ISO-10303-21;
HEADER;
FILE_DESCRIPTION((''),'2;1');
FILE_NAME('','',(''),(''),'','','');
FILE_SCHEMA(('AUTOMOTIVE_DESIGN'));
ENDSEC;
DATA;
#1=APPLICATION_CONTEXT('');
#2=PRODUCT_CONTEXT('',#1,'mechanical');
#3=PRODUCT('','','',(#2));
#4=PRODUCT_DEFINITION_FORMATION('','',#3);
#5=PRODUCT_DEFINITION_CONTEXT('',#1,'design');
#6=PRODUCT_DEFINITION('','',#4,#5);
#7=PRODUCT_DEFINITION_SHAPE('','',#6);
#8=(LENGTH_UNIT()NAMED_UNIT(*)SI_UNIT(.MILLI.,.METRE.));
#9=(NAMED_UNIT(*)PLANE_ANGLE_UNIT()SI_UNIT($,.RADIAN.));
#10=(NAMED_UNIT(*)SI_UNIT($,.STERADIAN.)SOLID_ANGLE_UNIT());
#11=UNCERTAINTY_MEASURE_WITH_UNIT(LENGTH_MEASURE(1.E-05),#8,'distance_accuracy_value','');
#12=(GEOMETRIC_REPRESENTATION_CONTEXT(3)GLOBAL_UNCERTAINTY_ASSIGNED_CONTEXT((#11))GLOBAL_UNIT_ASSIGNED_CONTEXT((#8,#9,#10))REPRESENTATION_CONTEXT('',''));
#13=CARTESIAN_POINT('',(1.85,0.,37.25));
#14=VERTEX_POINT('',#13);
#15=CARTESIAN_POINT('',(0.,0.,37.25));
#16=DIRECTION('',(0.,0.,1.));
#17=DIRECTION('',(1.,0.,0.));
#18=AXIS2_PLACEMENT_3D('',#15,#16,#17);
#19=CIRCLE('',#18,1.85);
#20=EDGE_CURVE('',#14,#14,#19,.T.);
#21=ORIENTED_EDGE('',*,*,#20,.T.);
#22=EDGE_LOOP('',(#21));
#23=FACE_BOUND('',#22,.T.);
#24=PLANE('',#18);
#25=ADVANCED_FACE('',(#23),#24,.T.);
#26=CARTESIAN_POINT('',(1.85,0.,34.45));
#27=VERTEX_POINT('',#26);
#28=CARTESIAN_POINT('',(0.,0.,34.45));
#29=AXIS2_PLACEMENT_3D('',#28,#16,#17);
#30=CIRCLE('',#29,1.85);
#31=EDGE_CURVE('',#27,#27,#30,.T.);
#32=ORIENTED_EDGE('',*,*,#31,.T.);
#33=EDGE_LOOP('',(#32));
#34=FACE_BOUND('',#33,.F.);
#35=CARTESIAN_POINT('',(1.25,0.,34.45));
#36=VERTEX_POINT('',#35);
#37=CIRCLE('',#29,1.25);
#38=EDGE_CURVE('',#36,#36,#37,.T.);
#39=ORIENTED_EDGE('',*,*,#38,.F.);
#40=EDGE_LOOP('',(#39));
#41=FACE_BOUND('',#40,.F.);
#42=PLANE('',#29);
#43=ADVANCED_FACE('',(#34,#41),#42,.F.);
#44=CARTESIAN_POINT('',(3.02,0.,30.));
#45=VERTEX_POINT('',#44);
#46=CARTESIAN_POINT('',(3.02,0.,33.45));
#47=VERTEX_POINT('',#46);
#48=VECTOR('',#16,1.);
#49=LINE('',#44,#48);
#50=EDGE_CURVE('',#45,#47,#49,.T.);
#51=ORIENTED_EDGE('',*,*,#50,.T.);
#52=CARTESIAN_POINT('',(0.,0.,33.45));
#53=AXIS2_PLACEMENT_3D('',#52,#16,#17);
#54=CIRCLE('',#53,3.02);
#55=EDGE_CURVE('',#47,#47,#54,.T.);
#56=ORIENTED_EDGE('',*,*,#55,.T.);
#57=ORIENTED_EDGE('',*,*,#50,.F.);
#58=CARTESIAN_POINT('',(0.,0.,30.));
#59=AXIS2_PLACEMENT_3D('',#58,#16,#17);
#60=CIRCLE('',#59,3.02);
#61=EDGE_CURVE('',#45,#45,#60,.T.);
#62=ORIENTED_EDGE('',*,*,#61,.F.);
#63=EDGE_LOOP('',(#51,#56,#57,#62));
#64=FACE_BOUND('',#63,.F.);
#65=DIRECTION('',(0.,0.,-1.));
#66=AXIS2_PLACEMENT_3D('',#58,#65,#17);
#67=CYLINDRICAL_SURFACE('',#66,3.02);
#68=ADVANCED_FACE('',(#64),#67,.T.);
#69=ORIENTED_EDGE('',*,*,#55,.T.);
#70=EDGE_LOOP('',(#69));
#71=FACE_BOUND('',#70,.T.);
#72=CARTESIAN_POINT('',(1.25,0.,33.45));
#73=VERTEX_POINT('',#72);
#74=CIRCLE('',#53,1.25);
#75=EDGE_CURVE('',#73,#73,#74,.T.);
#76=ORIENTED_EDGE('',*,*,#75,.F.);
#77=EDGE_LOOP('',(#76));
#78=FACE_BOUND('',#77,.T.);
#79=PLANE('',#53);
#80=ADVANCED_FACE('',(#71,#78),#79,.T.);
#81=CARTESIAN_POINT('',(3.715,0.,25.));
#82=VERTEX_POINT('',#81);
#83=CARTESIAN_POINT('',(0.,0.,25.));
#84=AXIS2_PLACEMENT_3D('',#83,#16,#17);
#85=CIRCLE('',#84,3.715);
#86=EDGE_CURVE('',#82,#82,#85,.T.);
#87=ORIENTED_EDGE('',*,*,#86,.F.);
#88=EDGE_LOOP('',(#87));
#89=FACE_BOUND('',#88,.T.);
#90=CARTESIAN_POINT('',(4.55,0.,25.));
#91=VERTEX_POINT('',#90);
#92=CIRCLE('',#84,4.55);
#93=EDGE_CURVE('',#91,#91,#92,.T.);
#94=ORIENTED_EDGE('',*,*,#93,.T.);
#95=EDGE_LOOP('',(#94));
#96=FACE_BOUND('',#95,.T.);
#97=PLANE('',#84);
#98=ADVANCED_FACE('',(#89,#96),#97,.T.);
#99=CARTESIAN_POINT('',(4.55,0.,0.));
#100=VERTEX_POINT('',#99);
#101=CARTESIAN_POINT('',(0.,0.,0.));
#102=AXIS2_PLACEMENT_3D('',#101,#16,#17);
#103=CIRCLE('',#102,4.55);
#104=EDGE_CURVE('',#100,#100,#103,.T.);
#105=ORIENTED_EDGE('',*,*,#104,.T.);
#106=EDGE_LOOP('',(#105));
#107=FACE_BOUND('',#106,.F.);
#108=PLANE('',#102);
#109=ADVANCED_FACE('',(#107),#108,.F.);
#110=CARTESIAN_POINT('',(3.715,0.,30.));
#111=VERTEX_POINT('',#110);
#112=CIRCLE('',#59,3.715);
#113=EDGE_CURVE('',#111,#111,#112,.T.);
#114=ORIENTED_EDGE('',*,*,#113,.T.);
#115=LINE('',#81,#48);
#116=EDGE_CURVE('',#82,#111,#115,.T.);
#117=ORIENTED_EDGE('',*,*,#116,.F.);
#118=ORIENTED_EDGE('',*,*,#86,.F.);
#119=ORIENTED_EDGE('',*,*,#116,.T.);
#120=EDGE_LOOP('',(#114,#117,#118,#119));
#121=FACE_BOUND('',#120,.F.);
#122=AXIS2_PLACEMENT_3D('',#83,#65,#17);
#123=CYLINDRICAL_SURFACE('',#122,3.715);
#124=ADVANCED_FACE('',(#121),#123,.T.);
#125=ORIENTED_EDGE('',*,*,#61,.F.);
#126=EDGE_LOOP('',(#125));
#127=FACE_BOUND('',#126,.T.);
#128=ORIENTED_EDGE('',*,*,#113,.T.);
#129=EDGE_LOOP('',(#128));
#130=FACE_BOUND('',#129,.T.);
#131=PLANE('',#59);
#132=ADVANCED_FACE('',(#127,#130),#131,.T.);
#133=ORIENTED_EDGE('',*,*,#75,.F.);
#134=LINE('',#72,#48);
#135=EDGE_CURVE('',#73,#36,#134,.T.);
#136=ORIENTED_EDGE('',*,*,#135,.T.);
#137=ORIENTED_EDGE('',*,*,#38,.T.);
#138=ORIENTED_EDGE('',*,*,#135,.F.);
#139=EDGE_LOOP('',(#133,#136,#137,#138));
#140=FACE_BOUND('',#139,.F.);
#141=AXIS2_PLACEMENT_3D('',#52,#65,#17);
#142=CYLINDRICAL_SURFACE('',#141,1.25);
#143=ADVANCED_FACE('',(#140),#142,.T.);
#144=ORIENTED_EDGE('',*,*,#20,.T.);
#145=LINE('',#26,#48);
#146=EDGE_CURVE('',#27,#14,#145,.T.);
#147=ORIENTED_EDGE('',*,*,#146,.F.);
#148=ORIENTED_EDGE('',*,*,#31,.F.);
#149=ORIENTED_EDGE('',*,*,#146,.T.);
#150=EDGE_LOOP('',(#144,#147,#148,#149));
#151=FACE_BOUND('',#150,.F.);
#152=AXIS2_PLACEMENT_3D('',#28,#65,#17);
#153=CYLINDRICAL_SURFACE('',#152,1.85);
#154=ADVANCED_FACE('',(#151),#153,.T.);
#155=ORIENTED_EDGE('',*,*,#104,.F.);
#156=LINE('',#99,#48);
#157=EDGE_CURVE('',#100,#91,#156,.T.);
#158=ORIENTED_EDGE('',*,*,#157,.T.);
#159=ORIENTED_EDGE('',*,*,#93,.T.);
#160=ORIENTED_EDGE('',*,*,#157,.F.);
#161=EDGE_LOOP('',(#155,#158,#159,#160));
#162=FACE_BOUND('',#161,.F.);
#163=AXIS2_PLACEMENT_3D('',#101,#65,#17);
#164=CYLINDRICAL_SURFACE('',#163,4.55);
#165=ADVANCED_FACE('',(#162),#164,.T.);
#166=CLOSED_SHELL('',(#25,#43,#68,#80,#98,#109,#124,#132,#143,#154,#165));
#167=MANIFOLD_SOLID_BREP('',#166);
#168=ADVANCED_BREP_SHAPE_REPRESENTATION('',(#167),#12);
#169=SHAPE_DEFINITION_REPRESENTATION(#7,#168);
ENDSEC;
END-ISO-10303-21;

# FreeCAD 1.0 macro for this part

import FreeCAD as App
import Part
import Sketcher

V = App.Vector
Q = App.Units.Quantity

doc = App.newDocument("Part")
params = doc.addObject("Spreadsheet::Sheet", "Params")
for row, (alias, value) in enumerate([
    ("sketch1_diameter", "9.1 mm"),
    ("pad1_length", "25 mm"),
    ("sketch2_diameter", "7.43 mm"),
    ("pad2_length", "5 mm"),
    ("sketch3_diameter", "6.04 mm"),
    ("pad3_length", "3.45 mm"),
    ("sketch4_diameter", "2.5 mm"),
    ("pad4_length", "1 mm"),
    ("sketch5_diameter", "3.7 mm"),
    ("pad5_length", "2.8 mm"),
], start=1):
    params.set(f"A{row}", alias)
    params.set(f"B{row}", "=" + value)
    params.setAlias(f"B{row}", alias)

body = doc.addObject("PartDesign::Body", "Body")

# Sketch on XY plane
sketch1 = body.newObject("Sketcher::SketchObject", "Sketch")
sketch1.AttachmentSupport = (doc.getObject("XY_Plane"), [""])
sketch1.MapMode = "FlatFace"
sketch1.addGeometry(Part.Circle(V(0, 0, 0), V(0, 0, 1), 4.5), False)
sketch1.addConstraint(Sketcher.Constraint("Coincident", 0, 3, -1, 1))
sketch1.addConstraint(Sketcher.Constraint("Diameter", 0, Q("9.1 mm")))
sketch1.setExpression("Constraints[1]", "Params.sketch1_diameter")
pad1 = body.newObject("PartDesign::Pad", "Pad")
pad1.Profile = sketch1
pad1.setExpression("Length", "Params.pad1_length")

# Sketch on XY plane
sketch2 = body.newObject("Sketcher::SketchObject", "Sketch001")
sketch2.AttachmentSupport = (doc.getObject("XY_Plane"), [""])
sketch2.MapMode = "FlatFace"
sketch2.AttachmentOffset = App.Placement(V(0, 0, 25), App.Rotation())
sketch2.addGeometry(Part.Circle(V(0, 0, 0), V(0, 0, 1), 3.7), False)
sketch2.addConstraint(Sketcher.Constraint("Coincident", 0, 3, -1, 1))
sketch2.addConstraint(Sketcher.Constraint("Diameter", 0, Q("7.43 mm")))
sketch2.setExpression("Constraints[1]", "Params.sketch2_diameter")
pad2 = body.newObject("PartDesign::Pad", "Pad001")
pad2.Profile = sketch2
pad2.setExpression("Length", "Params.pad2_length")

# Sketch on XY plane
sketch3 = body.newObject("Sketcher::SketchObject", "Sketch002")
sketch3.AttachmentSupport = (doc.getObject("XY_Plane"), [""])
sketch3.MapMode = "FlatFace"
sketch3.AttachmentOffset = App.Placement(V(0, 0, 30), App.Rotation())
sketch3.addGeometry(Part.Circle(V(0, 0, 0), V(0, 0, 1), 3), False)
sketch3.addConstraint(Sketcher.Constraint("Coincident", 0, 3, -1, 1))
sketch3.addConstraint(Sketcher.Constraint("Diameter", 0, Q("6.04 mm")))
sketch3.setExpression("Constraints[1]", "Params.sketch3_diameter")
pad3 = body.newObject("PartDesign::Pad", "Pad002")
pad3.Profile = sketch3
pad3.setExpression("Length", "Params.pad3_length")

# Sketch on XY plane
sketch4 = body.newObject("Sketcher::SketchObject", "Sketch003")
sketch4.AttachmentSupport = (doc.getObject("XY_Plane"), [""])
sketch4.MapMode = "FlatFace"
sketch4.AttachmentOffset = App.Placement(V(0, 0, 33.45), App.Rotation())
sketch4.addGeometry(Part.Circle(V(0, 0, 0), V(0, 0, 1), 1.2), False)
sketch4.addConstraint(Sketcher.Constraint("Coincident", 0, 3, -1, 1))
sketch4.addConstraint(Sketcher.Constraint("Diameter", 0, Q("2.5 mm")))
sketch4.setExpression("Constraints[1]", "Params.sketch4_diameter")
pad4 = body.newObject("PartDesign::Pad", "Pad003")
pad4.Profile = sketch4
pad4.setExpression("Length", "Params.pad4_length")

# Sketch on XY plane
sketch5 = body.newObject("Sketcher::SketchObject", "Sketch004")
sketch5.AttachmentSupport = (doc.getObject("XY_Plane"), [""])
sketch5.MapMode = "FlatFace"
sketch5.AttachmentOffset = App.Placement(V(0, 0, 34.45), App.Rotation())
sketch5.addGeometry(Part.Circle(V(0, 0, 0), V(0, 0, 1), 1.9), False)
sketch5.addConstraint(Sketcher.Constraint("Coincident", 0, 3, -1, 1))
sketch5.addConstraint(Sketcher.Constraint("Diameter", 0, Q("3.7 mm")))
sketch5.setExpression("Constraints[1]", "Params.sketch5_diameter")
pad5 = body.newObject("PartDesign::Pad", "Pad004")
pad5.Profile = sketch5
pad5.setExpression("Length", "Params.pad5_length")

doc.recompute()
